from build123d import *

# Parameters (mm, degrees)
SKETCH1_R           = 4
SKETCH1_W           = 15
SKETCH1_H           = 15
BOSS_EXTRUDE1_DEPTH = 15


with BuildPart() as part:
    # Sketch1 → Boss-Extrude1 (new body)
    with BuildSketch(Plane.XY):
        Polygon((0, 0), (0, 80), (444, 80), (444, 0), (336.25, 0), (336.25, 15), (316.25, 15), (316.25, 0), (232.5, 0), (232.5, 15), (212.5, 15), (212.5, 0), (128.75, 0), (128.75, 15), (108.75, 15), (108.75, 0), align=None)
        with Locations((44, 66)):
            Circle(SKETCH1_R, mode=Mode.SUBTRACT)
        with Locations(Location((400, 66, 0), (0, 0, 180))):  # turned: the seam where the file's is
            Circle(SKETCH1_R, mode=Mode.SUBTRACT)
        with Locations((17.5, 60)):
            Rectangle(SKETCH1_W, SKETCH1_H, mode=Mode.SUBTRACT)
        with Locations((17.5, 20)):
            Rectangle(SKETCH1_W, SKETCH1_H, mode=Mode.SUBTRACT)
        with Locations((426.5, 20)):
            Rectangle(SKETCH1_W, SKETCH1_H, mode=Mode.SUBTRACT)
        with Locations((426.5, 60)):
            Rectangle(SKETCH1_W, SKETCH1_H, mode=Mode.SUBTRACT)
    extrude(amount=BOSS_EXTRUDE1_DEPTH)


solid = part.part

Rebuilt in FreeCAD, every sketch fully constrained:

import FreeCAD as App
import Part
import Sketcher
from FreeCAD import Vector
Q = App.Units.Quantity

doc = App.newDocument("Part")
body = doc.addObject("PartDesign::Body", "Body")

# Sketch on XY plane
sketch1 = body.newObject("Sketcher::SketchObject", "Sketch")
sketch1.AttachmentSupport = (doc.getObject("XY_Plane"), [""])
sketch1.MapMode = "FlatFace"
sketch1.addGeometry([
    Part.LineSegment(Vector(0, 80, 0), Vector(0, 0, 0)),  # 0
    Part.LineSegment(Vector(0, 0, 0), Vector(108.75, 0, 0)),  # 1
    Part.LineSegment(Vector(108.75, 0, 0), Vector(108.75, 15, 0)),  # 2
    Part.LineSegment(Vector(108.75, 15, 0), Vector(128.75, 15, 0)),  # 3
    Part.LineSegment(Vector(128.75, 15, 0), Vector(128.75, 0, 0)),  # 4
    Part.LineSegment(Vector(128.75, 0, 0), Vector(212.5, 0, 0)),  # 5
    Part.LineSegment(Vector(212.5, 0, 0), Vector(212.5, 15, 0)),  # 6
    Part.LineSegment(Vector(212.5, 15, 0), Vector(232.5, 15, 0)),  # 7
    Part.LineSegment(Vector(232.5, 15, 0), Vector(232.5, 0, 0)),  # 8
    Part.LineSegment(Vector(232.5, 0, 0), Vector(316.25, 0, 0)),  # 9
    Part.LineSegment(Vector(316.25, 0, 0), Vector(316.25, 15, 0)),  # 10
    Part.LineSegment(Vector(316.25, 15, 0), Vector(336.25, 15, 0)),  # 11
    Part.LineSegment(Vector(336.25, 15, 0), Vector(336.25, 0, 0)),  # 12
    Part.LineSegment(Vector(336.25, 0, 0), Vector(444, 0, 0)),  # 13
    Part.LineSegment(Vector(444, 0, 0), Vector(444, 80, 0)),  # 14
    Part.LineSegment(Vector(444, 80, 0), Vector(0, 80, 0)),  # 15
    Part.LineSegment(Vector(419, 12.5, 0), Vector(419, 27.5, 0)),  # 16
    Part.LineSegment(Vector(419, 27.5, 0), Vector(434, 27.5, 0)),  # 17
    Part.LineSegment(Vector(434, 27.5, 0), Vector(434, 12.5, 0)),  # 18
    Part.LineSegment(Vector(434, 12.5, 0), Vector(419, 12.5, 0)),  # 19
    Part.LineSegment(Vector(10, 12.5, 0), Vector(10, 27.5, 0)),  # 20
    Part.LineSegment(Vector(10, 27.5, 0), Vector(25, 27.5, 0)),  # 21
    Part.LineSegment(Vector(25, 27.5, 0), Vector(25, 12.5, 0)),  # 22
    Part.LineSegment(Vector(25, 12.5, 0), Vector(10, 12.5, 0)),  # 23
    Part.LineSegment(Vector(419, 52.5, 0), Vector(419, 67.5, 0)),  # 24
    Part.LineSegment(Vector(419, 67.5, 0), Vector(434, 67.5, 0)),  # 25
    Part.LineSegment(Vector(434, 67.5, 0), Vector(434, 52.5, 0)),  # 26
    Part.LineSegment(Vector(434, 52.5, 0), Vector(419, 52.5, 0)),  # 27
    Part.Circle(Vector(400, 66, 0), Vector(0, 0, 1), 4),  # 28
    Part.LineSegment(Vector(10, 52.5, 0), Vector(10, 67.5, 0)),  # 29
    Part.LineSegment(Vector(10, 67.5, 0), Vector(25, 67.5, 0)),  # 30
    Part.LineSegment(Vector(25, 67.5, 0), Vector(25, 52.5, 0)),  # 31
    Part.LineSegment(Vector(25, 52.5, 0), Vector(10, 52.5, 0)),  # 32
    Part.Circle(Vector(44, 66, 0), Vector(0, 0, 1), 4),  # 33
], False)
sketch1.addConstraint([
    Sketcher.Constraint("Coincident", 0, 2, 1, 1),
    Sketcher.Constraint("Coincident", 1, 2, 2, 1),
    Sketcher.Constraint("Coincident", 2, 2, 3, 1),
    Sketcher.Constraint("Coincident", 3, 2, 4, 1),
    Sketcher.Constraint("Coincident", 4, 2, 5, 1),
    Sketcher.Constraint("Coincident", 5, 2, 6, 1),
    Sketcher.Constraint("Coincident", 6, 2, 7, 1),
    Sketcher.Constraint("Coincident", 7, 2, 8, 1),
    Sketcher.Constraint("Coincident", 8, 2, 9, 1),
    Sketcher.Constraint("Coincident", 9, 2, 10, 1),
    Sketcher.Constraint("Coincident", 10, 2, 11, 1),
    Sketcher.Constraint("Coincident", 11, 2, 12, 1),
    Sketcher.Constraint("Coincident", 12, 2, 13, 1),
    Sketcher.Constraint("Coincident", 13, 2, 14, 1),
    Sketcher.Constraint("Coincident", 14, 2, 15, 1),
    Sketcher.Constraint("Coincident", 15, 2, 0, 1),
    Sketcher.Constraint("Coincident", 16, 2, 17, 1),
    Sketcher.Constraint("Coincident", 17, 2, 18, 1),
    Sketcher.Constraint("Coincident", 18, 2, 19, 1),
    Sketcher.Constraint("Coincident", 19, 2, 16, 1),
    Sketcher.Constraint("Coincident", 20, 2, 21, 1),
    Sketcher.Constraint("Coincident", 21, 2, 22, 1),
    Sketcher.Constraint("Coincident", 22, 2, 23, 1),
    Sketcher.Constraint("Coincident", 23, 2, 20, 1),
    Sketcher.Constraint("Coincident", 24, 2, 25, 1),
    Sketcher.Constraint("Coincident", 25, 2, 26, 1),
    Sketcher.Constraint("Coincident", 26, 2, 27, 1),
    Sketcher.Constraint("Coincident", 27, 2, 24, 1),
    Sketcher.Constraint("Coincident", 29, 2, 30, 1),
    Sketcher.Constraint("Coincident", 30, 2, 31, 1),
    Sketcher.Constraint("Coincident", 31, 2, 32, 1),
    Sketcher.Constraint("Coincident", 32, 2, 29, 1),
    Sketcher.Constraint("Vertical", 0),
    Sketcher.Constraint("Horizontal", 1),
    Sketcher.Constraint("Vertical", 2),
    Sketcher.Constraint("Horizontal", 3),
    Sketcher.Constraint("Vertical", 4),
    Sketcher.Constraint("Horizontal", 5),
    Sketcher.Constraint("Vertical", 6),
    Sketcher.Constraint("Horizontal", 7),
    Sketcher.Constraint("Vertical", 8),
    Sketcher.Constraint("Horizontal", 9),
    Sketcher.Constraint("Vertical", 10),
    Sketcher.Constraint("Horizontal", 11),
    Sketcher.Constraint("Vertical", 12),
    Sketcher.Constraint("Horizontal", 13),
    Sketcher.Constraint("Vertical", 14),
    Sketcher.Constraint("Horizontal", 15),
    Sketcher.Constraint("Vertical", 16),
    Sketcher.Constraint("Horizontal", 17),
    Sketcher.Constraint("Vertical", 18),
    Sketcher.Constraint("Horizontal", 19),
    Sketcher.Constraint("Vertical", 20),
    Sketcher.Constraint("Horizontal", 21),
    Sketcher.Constraint("Vertical", 22),
    Sketcher.Constraint("Horizontal", 23),
    Sketcher.Constraint("Vertical", 24),
    Sketcher.Constraint("Horizontal", 25),
    Sketcher.Constraint("Vertical", 26),
    Sketcher.Constraint("Horizontal", 27),
    Sketcher.Constraint("Vertical", 29),
    Sketcher.Constraint("Horizontal", 30),
    Sketcher.Constraint("Vertical", 31),
    Sketcher.Constraint("Horizontal", 32),
    Sketcher.Constraint("Coincident", 0, 2, -1, 1),
    Sketcher.Constraint("Equal", 28, 33),
    Sketcher.Constraint("PointOnObject", 4, 2, -1),
    Sketcher.Constraint("PointOnObject", 8, 2, -1),
    Sketcher.Constraint("PointOnObject", 12, 2, -1),
    Sketcher.Constraint("Horizontal", 28, 3, 33, 3),
    Sketcher.Constraint("Horizontal", 3, 2, 6, 2),
    Sketcher.Constraint("Horizontal", 7, 2, 10, 2),
    Sketcher.Constraint("Horizontal", 17, 2, 20, 2),
    Sketcher.Constraint("Horizontal", 19, 2, 22, 2),
    Sketcher.Constraint("Horizontal", 25, 2, 29, 2),
    Sketcher.Constraint("Horizontal", 27, 2, 31, 2),
    Sketcher.Constraint("Vertical", 19, 2, 24, 2),
    Sketcher.Constraint("Vertical", 18, 2, 25, 2),
    Sketcher.Constraint("Vertical", 23, 2, 29, 2),
    Sketcher.Constraint("Vertical", 22, 2, 30, 2),
    Sketcher.Constraint("Equal", 3, 7),
    Sketcher.Constraint("Equal", 5, 9),
    Sketcher.Constraint("Equal", 7, 11),
    Sketcher.Constraint("Equal", 19, 21),
    Sketcher.Constraint("Equal", 32, 2),
    Sketcher.Constraint("Equal", 12, 16),
    Sketcher.Constraint("Equal", 22, 24),
    Sketcher.Constraint("Diameter", 28, Q("8 mm")),
    Sketcher.Constraint("DistanceX", 3, 1, 3, 2, Q("20 mm")),
    Sketcher.Constraint("DistanceX", 15, 2, 15, 1, Q("444 mm")),
    Sketcher.Constraint("DistanceX", 17, 1, 17, 2, Q("15 mm")),
    Sketcher.Constraint("DistanceY", 0, 2, 0, 1, Q("80 mm")),
    Sketcher.Constraint("DistanceX", -1, 1, 28, 3, Q("400 mm")),
    Sketcher.Constraint("DistanceY", -1, 1, 28, 3, Q("66 mm")),
    Sketcher.Constraint("DistanceX", -1, 1, 33, 3, Q("44 mm")),
    Sketcher.Constraint("DistanceX", -1, 1, 16, 2, Q("419 mm")),
    Sketcher.Constraint("DistanceX", -1, 1, 20, 2, Q("10 mm")),
    Sketcher.Constraint("DistanceY", 16, 2, 24, 2, Q("40 mm")),
    Sketcher.Constraint("DistanceX", 1, 1, 1, 2, Q("108.75 mm")),
    Sketcher.Constraint("DistanceX", 5, 1, 5, 2, Q("83.75 mm")),
    Sketcher.Constraint("DistanceY", -1, 1, 16, 2, Q("27.5 mm")),
])
pad1 = body.newObject("PartDesign::Pad", "Pad")
pad1.Profile = sketch1
pad1.Length = 15

doc.recompute()
